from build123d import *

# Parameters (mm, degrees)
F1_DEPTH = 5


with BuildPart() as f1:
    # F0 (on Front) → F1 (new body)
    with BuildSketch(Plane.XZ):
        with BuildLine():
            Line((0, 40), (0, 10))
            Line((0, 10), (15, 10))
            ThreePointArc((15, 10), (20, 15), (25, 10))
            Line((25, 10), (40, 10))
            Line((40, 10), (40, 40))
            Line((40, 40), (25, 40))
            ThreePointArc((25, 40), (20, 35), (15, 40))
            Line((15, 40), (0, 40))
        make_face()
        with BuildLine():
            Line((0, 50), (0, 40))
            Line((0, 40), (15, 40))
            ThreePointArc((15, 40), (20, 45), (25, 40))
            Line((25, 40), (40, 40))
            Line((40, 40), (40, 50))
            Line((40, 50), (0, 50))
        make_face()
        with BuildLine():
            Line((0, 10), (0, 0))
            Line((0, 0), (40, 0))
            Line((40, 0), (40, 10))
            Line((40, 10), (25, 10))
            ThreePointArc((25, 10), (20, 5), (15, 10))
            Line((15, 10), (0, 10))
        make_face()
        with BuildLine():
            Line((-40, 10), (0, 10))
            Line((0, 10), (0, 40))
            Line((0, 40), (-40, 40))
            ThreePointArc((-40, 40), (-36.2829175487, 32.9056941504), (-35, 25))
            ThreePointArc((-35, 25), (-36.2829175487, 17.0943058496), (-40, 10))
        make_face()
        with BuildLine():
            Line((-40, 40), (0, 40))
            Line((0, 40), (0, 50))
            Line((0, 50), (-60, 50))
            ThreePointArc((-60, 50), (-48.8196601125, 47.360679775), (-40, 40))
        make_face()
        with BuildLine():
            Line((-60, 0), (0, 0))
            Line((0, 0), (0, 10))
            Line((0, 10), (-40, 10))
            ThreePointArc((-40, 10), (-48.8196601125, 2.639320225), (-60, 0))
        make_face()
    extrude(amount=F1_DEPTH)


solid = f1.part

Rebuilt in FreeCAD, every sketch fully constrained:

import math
import FreeCAD as App
import Part
import Sketcher
from FreeCAD import Vector
Q = App.Units.Quantity

doc = App.newDocument("Part")
body = doc.addObject("PartDesign::Body", "Body")

# Sketch on XZ plane
sketch1 = doc.addObject("Sketcher::SketchObject", "Sketch")
body.addObject(sketch1)
sketch1.AttachmentSupport = (doc.XZ_Plane, [""])
sketch1.MapMode = "FlatFace"
sketch1.addGeometry(Part.LineSegment(Vector(40, 50, 0), Vector(-60, 50, 0)), False)
sketch1.addGeometry(Part.ArcOfCircle(Part.Circle(Vector(-60, 25, 0), Vector(0, 0, 1), 25), math.radians(37), math.radians(90)), False)
sketch1.addGeometry(Part.ArcOfCircle(Part.Circle(Vector(-60, 25, 0), Vector(0, 0, 1), 25), math.radians(0), math.radians(37)), False)
sketch1.addGeometry(Part.ArcOfCircle(Part.Circle(Vector(-60, 25, 0), Vector(0, 0, 1), 25), math.radians(-37), math.radians(0)), False)
sketch1.addGeometry(Part.ArcOfCircle(Part.Circle(Vector(-60, 25, 0), Vector(0, 0, 1), 25), math.radians(-90), math.radians(-37)), False)
sketch1.addGeometry(Part.LineSegment(Vector(-60, 0, 0), Vector(40, 0, 0)), False)
sketch1.addGeometry(Part.LineSegment(Vector(40, 0, 0), Vector(40, 50, 0)), False)
sketch1.addGeometry(Part.Circle(Vector(20, 10, 0), Vector(0, 0, 1), 5), False)
sketch1.addGeometry(Part.Circle(Vector(20, 40, 0), Vector(0, 0, 1), 5), False)
sketch1.addConstraint(Sketcher.Constraint("Tangent", 0, 2, 1, 2))
sketch1.addConstraint(Sketcher.Constraint("Tangent", 1, 1, 2, 2))
sketch1.addConstraint(Sketcher.Constraint("Tangent", 2, 1, 3, 2))
sketch1.addConstraint(Sketcher.Constraint("Tangent", 3, 1, 4, 2))
sketch1.addConstraint(Sketcher.Constraint("Tangent", 4, 1, 5, 1))
sketch1.addConstraint(Sketcher.Constraint("Coincident", 5, 2, 6, 1))
sketch1.addConstraint(Sketcher.Constraint("Coincident", 6, 2, 0, 1))
sketch1.addConstraint(Sketcher.Constraint("Horizontal", 0))
sketch1.addConstraint(Sketcher.Constraint("Horizontal", 5))
sketch1.addConstraint(Sketcher.Constraint("Vertical", 6))
sketch1.addConstraint(Sketcher.Constraint("Coincident", 3, 3, 1, 3))
sketch1.addConstraint(Sketcher.Constraint("Equal", 3, 4))
sketch1.addConstraint(Sketcher.Constraint("Equal", 7, 8))
sketch1.addConstraint(Sketcher.Constraint("PointOnObject", 4, 1, -1))
sketch1.addConstraint(Sketcher.Constraint("Horizontal", 8, 3, 1, 1))
sketch1.addConstraint(Sketcher.Constraint("Horizontal", 4, 3, 2, 1))
sketch1.addConstraint(Sketcher.Constraint("Horizontal", 7, 3, 3, 1))
sketch1.addConstraint(Sketcher.Constraint("Vertical", 7, 3, 8, 3))
sketch1.addConstraint(Sketcher.Constraint("Vertical", 1, 1, 3, 1))
sketch1.addConstraint(Sketcher.Constraint("Diameter", 7, Q("10 mm")))
sketch1.addConstraint(Sketcher.Constraint("Radius", 1, Q("25 mm")))
sketch1.addConstraint(Sketcher.Constraint("DistanceX", 0, 2, 0, 1, Q("100 mm")))
sketch1.addConstraint(Sketcher.Constraint("DistanceX", 1, 3, -1, 1, Q("60 mm")))
sketch1.addConstraint(Sketcher.Constraint("DistanceX", -1, 1, 7, 3, Q("20 mm")))
sketch1.addConstraint(Sketcher.Constraint("DistanceY", -1, 1, 7, 3, Q("10 mm")))
pad1 = doc.addObject("PartDesign::Pad", "Pad")
body.addObject(pad1)
pad1.Profile = sketch1
pad1.Length = 5

doc.recompute()
